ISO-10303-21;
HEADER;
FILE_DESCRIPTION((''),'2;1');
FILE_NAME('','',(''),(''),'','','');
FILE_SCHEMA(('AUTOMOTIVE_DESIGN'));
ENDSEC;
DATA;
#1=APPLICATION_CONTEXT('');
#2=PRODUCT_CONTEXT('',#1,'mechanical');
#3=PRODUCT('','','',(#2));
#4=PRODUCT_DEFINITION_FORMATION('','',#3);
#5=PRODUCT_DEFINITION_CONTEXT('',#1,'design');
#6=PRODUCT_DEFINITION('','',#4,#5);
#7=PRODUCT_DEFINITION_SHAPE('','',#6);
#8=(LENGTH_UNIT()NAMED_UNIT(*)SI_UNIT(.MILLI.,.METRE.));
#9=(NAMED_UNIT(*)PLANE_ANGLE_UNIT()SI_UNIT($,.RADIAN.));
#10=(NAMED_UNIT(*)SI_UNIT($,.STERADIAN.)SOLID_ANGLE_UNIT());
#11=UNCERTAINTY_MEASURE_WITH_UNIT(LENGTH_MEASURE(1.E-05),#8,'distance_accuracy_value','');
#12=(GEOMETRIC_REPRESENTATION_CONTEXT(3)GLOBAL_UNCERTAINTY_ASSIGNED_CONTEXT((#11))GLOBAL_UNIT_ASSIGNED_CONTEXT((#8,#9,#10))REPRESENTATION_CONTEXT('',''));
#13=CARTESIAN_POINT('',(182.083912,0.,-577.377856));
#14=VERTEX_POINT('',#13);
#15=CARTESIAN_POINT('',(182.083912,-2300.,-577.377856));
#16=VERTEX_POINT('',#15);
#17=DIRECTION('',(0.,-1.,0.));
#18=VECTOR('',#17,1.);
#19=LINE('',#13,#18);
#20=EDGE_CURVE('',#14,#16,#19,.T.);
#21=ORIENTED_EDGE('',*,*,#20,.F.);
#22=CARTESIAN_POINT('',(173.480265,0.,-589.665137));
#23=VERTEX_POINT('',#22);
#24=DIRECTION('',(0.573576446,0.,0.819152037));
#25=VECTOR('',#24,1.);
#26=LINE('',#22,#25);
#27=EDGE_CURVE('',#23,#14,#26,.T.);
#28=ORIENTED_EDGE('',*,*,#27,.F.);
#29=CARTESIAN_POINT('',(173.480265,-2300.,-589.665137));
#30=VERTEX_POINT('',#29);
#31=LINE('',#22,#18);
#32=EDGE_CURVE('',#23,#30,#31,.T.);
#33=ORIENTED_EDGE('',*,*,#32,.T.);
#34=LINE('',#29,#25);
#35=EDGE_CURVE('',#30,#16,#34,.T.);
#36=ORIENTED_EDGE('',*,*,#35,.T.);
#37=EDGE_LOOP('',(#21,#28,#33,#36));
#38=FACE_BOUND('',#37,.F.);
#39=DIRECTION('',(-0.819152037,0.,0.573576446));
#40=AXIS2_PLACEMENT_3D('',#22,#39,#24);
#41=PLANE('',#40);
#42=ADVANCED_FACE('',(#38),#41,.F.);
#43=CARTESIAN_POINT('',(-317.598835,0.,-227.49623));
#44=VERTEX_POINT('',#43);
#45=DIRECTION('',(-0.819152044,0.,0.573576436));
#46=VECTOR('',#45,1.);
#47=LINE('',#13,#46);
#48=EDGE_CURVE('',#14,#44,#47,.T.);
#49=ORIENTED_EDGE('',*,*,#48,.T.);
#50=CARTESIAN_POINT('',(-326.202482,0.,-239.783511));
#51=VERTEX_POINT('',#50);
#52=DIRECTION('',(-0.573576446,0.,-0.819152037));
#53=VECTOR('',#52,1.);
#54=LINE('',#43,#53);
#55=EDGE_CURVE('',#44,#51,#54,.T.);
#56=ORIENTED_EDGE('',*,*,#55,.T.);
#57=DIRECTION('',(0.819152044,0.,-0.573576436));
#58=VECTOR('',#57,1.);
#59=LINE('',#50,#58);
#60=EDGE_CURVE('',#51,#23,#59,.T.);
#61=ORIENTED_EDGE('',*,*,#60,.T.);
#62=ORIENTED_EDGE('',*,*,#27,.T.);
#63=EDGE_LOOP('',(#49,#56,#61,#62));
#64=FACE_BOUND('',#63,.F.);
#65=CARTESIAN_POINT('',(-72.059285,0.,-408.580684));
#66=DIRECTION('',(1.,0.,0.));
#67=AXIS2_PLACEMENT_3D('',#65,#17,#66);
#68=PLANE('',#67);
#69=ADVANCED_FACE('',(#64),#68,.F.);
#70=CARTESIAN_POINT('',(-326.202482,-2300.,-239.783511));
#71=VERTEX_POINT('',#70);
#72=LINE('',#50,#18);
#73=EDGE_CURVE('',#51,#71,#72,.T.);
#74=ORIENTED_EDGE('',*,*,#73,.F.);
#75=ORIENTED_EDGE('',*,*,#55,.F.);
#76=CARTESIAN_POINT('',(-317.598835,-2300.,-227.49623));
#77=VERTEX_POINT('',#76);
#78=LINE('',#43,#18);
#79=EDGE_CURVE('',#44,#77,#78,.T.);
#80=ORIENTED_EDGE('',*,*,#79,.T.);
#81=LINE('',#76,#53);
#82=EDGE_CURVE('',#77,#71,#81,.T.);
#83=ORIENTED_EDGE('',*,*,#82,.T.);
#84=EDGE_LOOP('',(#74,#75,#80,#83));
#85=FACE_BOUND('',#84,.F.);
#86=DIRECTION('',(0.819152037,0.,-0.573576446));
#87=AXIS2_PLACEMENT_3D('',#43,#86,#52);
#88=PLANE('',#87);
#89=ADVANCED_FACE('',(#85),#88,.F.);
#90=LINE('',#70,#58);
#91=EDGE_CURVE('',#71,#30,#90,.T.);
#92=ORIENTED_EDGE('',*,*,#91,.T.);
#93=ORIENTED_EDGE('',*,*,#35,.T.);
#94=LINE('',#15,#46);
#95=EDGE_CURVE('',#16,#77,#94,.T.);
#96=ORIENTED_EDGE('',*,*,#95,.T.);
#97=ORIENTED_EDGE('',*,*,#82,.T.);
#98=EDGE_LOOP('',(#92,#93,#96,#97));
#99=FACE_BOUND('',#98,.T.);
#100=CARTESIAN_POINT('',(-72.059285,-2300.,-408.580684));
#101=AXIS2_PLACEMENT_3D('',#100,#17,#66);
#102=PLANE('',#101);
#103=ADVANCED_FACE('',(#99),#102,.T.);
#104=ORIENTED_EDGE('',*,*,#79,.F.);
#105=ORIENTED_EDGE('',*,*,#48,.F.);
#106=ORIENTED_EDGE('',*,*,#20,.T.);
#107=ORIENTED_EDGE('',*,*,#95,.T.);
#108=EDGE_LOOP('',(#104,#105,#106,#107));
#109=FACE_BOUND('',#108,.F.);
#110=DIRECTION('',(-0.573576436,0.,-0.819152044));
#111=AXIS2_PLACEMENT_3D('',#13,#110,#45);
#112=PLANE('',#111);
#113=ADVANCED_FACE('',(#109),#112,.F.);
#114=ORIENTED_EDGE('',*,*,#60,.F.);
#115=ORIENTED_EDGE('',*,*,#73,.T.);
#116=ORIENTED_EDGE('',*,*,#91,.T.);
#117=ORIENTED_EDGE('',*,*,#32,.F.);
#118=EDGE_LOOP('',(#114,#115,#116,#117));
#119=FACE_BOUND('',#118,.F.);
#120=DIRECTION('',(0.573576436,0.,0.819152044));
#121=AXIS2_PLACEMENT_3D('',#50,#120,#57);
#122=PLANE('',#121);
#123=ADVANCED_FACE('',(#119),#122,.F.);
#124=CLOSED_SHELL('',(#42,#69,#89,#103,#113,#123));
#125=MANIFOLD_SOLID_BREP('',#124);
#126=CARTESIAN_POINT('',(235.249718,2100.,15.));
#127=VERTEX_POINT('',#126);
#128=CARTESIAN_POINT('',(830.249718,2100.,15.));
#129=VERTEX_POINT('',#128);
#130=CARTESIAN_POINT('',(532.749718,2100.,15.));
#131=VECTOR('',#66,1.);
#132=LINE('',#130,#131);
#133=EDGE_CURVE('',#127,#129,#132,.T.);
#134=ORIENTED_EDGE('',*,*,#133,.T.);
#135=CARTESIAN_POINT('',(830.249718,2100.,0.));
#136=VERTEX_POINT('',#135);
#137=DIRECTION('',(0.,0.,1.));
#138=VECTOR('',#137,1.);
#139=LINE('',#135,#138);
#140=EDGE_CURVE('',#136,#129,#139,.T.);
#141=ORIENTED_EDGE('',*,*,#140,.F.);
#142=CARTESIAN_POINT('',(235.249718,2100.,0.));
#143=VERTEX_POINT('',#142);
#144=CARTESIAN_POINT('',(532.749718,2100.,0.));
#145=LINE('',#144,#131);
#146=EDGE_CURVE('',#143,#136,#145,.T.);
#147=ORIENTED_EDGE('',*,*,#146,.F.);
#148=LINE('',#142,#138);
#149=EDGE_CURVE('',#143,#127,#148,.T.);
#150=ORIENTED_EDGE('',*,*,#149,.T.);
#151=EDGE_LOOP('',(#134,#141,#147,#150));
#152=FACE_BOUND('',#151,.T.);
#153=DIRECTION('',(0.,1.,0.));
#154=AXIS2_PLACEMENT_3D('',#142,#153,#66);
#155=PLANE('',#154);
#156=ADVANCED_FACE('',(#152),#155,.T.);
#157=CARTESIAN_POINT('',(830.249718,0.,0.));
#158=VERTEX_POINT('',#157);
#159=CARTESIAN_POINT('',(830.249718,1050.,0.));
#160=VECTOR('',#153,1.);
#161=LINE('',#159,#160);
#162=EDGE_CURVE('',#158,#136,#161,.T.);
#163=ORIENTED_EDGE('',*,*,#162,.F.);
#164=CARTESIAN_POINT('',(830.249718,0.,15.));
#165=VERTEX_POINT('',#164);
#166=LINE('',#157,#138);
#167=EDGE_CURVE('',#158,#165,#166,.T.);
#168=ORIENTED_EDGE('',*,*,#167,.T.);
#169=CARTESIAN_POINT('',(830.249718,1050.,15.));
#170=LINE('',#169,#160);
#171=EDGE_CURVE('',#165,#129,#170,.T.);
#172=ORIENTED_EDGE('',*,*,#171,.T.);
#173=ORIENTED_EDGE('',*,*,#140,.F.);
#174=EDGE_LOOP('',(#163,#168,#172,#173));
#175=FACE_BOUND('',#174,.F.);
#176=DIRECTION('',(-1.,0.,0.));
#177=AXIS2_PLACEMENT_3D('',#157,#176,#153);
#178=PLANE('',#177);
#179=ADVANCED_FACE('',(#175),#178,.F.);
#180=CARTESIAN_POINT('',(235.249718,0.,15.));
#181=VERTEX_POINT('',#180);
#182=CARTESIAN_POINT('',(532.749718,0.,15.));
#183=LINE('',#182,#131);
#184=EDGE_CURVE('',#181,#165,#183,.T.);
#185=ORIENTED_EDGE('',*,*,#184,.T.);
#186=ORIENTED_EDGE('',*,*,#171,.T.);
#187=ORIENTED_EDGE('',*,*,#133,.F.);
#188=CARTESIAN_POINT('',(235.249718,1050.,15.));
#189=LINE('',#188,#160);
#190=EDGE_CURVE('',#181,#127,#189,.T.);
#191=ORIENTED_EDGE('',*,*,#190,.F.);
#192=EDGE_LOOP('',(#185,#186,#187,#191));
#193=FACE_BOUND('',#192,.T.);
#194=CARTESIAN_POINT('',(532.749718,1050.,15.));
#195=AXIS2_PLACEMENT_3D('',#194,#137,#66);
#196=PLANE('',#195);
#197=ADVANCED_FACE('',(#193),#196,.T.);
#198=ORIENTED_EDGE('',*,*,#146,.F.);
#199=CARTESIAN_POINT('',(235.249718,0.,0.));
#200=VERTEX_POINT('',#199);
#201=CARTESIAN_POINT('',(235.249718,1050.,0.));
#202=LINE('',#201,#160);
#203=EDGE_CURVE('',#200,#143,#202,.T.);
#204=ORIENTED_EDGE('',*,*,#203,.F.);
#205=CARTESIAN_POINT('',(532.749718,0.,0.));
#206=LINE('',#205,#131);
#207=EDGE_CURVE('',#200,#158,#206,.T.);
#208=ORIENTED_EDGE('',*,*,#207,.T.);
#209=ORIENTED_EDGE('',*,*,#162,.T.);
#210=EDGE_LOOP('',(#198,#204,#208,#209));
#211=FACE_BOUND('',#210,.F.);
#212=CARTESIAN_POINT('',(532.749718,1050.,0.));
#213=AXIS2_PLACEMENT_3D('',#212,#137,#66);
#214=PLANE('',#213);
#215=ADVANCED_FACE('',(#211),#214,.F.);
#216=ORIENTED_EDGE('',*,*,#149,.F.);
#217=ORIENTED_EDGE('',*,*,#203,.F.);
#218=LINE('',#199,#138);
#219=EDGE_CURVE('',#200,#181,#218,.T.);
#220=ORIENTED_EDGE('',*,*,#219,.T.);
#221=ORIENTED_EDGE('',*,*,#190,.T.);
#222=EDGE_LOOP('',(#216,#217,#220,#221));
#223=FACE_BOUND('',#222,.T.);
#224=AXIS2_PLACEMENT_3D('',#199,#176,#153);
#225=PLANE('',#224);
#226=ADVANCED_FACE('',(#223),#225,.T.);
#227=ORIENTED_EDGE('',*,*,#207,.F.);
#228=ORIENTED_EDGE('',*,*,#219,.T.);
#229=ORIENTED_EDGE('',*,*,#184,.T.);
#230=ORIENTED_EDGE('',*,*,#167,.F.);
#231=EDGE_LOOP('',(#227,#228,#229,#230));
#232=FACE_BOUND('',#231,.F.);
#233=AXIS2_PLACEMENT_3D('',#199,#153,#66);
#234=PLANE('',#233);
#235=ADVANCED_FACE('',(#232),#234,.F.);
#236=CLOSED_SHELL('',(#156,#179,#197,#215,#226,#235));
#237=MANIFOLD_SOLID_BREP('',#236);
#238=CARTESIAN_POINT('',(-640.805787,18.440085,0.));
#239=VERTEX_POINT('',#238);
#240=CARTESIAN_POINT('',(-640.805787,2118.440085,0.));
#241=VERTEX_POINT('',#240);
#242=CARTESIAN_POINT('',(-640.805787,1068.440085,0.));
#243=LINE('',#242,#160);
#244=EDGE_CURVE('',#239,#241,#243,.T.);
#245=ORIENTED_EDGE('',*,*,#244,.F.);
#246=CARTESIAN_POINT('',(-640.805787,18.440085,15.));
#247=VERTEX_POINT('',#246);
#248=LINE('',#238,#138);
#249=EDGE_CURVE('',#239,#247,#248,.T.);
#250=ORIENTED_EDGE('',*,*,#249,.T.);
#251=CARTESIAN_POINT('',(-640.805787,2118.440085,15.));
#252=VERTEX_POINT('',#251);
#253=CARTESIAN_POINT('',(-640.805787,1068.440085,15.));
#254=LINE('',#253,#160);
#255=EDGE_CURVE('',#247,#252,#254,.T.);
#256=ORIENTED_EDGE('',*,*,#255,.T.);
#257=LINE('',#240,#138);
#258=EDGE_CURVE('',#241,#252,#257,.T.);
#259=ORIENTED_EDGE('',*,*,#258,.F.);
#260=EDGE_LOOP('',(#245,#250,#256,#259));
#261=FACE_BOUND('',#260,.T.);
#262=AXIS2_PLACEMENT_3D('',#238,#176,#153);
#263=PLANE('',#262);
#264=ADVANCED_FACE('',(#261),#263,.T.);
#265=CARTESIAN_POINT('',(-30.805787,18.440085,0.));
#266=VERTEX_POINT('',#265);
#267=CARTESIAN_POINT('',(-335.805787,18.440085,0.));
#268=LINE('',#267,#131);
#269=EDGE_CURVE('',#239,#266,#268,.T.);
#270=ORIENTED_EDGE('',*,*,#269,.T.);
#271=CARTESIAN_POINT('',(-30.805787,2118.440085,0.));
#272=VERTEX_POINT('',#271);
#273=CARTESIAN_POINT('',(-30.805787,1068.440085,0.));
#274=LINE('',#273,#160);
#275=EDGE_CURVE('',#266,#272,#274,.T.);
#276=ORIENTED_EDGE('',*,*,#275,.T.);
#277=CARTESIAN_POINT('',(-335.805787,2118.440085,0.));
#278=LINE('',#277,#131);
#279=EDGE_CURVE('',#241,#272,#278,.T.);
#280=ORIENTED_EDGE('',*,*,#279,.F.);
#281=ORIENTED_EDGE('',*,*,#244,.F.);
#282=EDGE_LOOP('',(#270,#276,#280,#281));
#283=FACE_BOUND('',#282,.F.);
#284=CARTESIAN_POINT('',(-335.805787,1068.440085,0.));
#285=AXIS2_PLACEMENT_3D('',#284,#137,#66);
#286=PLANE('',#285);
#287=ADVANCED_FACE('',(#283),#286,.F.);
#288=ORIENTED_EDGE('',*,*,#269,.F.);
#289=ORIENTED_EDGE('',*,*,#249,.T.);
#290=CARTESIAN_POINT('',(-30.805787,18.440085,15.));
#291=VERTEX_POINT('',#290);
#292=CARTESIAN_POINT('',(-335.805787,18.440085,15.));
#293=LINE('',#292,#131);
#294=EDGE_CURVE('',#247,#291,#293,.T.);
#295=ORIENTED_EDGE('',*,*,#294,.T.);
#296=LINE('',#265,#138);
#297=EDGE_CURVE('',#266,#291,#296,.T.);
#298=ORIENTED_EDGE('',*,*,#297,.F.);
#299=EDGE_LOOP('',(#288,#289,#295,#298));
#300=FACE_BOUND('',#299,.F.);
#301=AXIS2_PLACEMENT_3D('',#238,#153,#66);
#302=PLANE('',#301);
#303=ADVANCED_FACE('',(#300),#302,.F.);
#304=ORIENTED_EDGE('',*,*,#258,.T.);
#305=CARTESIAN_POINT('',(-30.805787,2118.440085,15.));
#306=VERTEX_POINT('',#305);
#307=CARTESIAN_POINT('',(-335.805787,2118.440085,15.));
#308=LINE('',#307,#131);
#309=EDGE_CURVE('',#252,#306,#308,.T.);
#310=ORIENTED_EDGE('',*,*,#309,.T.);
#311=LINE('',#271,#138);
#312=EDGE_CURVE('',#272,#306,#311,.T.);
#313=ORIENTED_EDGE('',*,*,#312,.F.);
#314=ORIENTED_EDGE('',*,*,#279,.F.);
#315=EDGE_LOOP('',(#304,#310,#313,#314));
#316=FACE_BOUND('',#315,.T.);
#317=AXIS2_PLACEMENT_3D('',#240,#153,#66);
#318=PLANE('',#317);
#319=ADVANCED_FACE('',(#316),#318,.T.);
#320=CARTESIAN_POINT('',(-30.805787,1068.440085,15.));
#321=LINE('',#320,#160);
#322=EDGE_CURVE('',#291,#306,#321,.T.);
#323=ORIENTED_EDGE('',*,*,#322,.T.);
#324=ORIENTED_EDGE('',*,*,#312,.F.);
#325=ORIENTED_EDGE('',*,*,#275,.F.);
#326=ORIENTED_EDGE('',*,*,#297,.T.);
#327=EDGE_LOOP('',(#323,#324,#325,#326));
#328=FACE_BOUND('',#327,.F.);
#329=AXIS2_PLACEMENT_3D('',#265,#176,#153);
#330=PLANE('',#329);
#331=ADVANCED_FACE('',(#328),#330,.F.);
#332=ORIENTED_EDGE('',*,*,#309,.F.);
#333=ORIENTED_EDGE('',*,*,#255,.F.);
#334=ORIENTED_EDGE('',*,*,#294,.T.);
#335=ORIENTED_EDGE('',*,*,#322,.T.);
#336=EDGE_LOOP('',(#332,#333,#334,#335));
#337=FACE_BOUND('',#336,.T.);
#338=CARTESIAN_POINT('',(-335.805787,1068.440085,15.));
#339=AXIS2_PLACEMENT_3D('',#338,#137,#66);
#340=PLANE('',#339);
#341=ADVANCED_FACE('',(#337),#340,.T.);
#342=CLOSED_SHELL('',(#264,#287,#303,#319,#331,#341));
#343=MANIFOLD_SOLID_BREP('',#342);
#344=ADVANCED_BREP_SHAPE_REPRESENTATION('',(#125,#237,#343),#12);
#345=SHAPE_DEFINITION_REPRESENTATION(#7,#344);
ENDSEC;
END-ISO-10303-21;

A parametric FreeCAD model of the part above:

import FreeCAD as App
import Part
import Sketcher
Q = App.Units.Quantity


def add_polygon(sketch, points):
    """Adds a closed chain of lines whose ends are joined by coincident constraints."""
    first, n = sketch.GeometryCount, len(points)
    for a, b in zip(points, points[1:] + points[:1]):
        sketch.addGeometry(Part.LineSegment(App.Vector(*a, 0), App.Vector(*b, 0)), False)
    for i in range(n):
        sketch.addConstraint(Sketcher.Constraint("Coincident", first + i, 2, first + (i + 1) % n, 1))

doc = App.newDocument("Part")
params = doc.addObject("Spreadsheet::Sheet", "Params")
for row, (alias, value) in enumerate([
    ("sketch1_width", "610 mm"),
    ("sketch1_height", "2100 mm"),
    ("pad1_length", "15 mm"),
    ("sketch2_width", "595 mm"),
    ("sketch2_height", "2100 mm"),
    ("pad2_length", "15 mm"),
    ("sketch3_length", "610 mm"),
    ("sketch3_length2", "15.000001 mm"),
    ("pad3_length", "2300 mm"),
], start=1):
    params.set(f"A{row}", alias)
    params.set(f"B{row}", "=" + value)
    params.setAlias(f"B{row}", alias)

body = doc.addObject("PartDesign::Body", "Body")

sketch1 = body.newObject("Sketcher::SketchObject", "Sketch")
sketch1.AttachmentSupport = (doc.getObject("XY_Plane"), [""])
sketch1.MapMode = "FlatFace"
add_polygon(sketch1, [(-641, 2118), (-641, 18), (-31, 18), (-31, 2118)])
sketch1.addConstraint([
    Sketcher.Constraint("Vertical", 0),
    Sketcher.Constraint("Horizontal", 1),
    Sketcher.Constraint("Vertical", 2),
    Sketcher.Constraint("Horizontal", 3),
    Sketcher.Constraint("DistanceX", 1, 1, 1, 2, Q("610 mm")),
    Sketcher.Constraint("DistanceY", 0, 2, 0, 1, Q("2100 mm")),
    Sketcher.Constraint("DistanceX", 0, 2, -1, 1, Q("640.805787 mm")),
    Sketcher.Constraint("DistanceY", -1, 1, 0, 2, Q("18.440085 mm")),
])
sketch1.setExpression("Constraints[8]", "Params.sketch1_width")
sketch1.setExpression("Constraints[9]", "Params.sketch1_height")
pad1 = body.newObject("PartDesign::Pad", "Pad")
pad1.Profile = sketch1
pad1.setExpression("Length", "Params.pad1_length")
body2 = doc.addObject("PartDesign::Body", "Body001")

sketch2 = body2.newObject("Sketcher::SketchObject", "Sketch001")
sketch2.AttachmentSupport = (doc.getObject("XY_Plane001"), [""])
sketch2.MapMode = "FlatFace"
add_polygon(sketch2, [(235, 2100), (235, 0), (830, 0), (830, 2100)])
sketch2.addConstraint([
    Sketcher.Constraint("Vertical", 0),
    Sketcher.Constraint("Horizontal", 1),
    Sketcher.Constraint("Vertical", 2),
    Sketcher.Constraint("Horizontal", 3),
    Sketcher.Constraint("PointOnObject", 0, 2, -1),
    Sketcher.Constraint("DistanceX", 1, 1, 1, 2, Q("595 mm")),
    Sketcher.Constraint("DistanceY", 0, 2, 0, 1, Q("2100 mm")),
    Sketcher.Constraint("DistanceX", -1, 1, 0, 2, Q("235.249718 mm")),
])
sketch2.setExpression("Constraints[9]", "Params.sketch2_width")
sketch2.setExpression("Constraints[10]", "Params.sketch2_height")
pad2 = body2.newObject("PartDesign::Pad", "Pad001")
pad2.Profile = sketch2
pad2.setExpression("Length", "Params.pad2_length")
body3 = doc.addObject("PartDesign::Body", "Body002")

sketch3 = body3.newObject("Sketcher::SketchObject", "Sketch002")
sketch3.AttachmentSupport = (doc.getObject("XZ_Plane002"), [""])
sketch3.MapMode = "FlatFace"
add_polygon(sketch3, [(-326, -240), (173, -590), (182, -577), (-318, -227)])
sketch3.addConstraint([
    Sketcher.Constraint("Perpendicular", 0, 1),
    Sketcher.Constraint("Perpendicular", 1, 2),
    Sketcher.Constraint("Perpendicular", 2, 3),
    Sketcher.Constraint("Angle", 0, Q("-35 deg")),
    Sketcher.Constraint("Distance", 0, Q("610 mm")),
    Sketcher.Constraint("Distance", 1, Q("15.000001 mm")),
    Sketcher.Constraint("DistanceX", -1, 1, 1, 2, Q("182.083912 mm")),
    Sketcher.Constraint("DistanceY", 2, 2, -1, 1, Q("227.49623 mm")),
])
sketch3.setExpression("Constraints[8]", "Params.sketch3_length")
sketch3.setExpression("Constraints[9]", "Params.sketch3_length2")
pad3 = body3.newObject("PartDesign::Pad", "Pad002")
pad3.Profile = sketch3
pad3.setExpression("Length", "Params.pad3_length")

doc.recompute()
